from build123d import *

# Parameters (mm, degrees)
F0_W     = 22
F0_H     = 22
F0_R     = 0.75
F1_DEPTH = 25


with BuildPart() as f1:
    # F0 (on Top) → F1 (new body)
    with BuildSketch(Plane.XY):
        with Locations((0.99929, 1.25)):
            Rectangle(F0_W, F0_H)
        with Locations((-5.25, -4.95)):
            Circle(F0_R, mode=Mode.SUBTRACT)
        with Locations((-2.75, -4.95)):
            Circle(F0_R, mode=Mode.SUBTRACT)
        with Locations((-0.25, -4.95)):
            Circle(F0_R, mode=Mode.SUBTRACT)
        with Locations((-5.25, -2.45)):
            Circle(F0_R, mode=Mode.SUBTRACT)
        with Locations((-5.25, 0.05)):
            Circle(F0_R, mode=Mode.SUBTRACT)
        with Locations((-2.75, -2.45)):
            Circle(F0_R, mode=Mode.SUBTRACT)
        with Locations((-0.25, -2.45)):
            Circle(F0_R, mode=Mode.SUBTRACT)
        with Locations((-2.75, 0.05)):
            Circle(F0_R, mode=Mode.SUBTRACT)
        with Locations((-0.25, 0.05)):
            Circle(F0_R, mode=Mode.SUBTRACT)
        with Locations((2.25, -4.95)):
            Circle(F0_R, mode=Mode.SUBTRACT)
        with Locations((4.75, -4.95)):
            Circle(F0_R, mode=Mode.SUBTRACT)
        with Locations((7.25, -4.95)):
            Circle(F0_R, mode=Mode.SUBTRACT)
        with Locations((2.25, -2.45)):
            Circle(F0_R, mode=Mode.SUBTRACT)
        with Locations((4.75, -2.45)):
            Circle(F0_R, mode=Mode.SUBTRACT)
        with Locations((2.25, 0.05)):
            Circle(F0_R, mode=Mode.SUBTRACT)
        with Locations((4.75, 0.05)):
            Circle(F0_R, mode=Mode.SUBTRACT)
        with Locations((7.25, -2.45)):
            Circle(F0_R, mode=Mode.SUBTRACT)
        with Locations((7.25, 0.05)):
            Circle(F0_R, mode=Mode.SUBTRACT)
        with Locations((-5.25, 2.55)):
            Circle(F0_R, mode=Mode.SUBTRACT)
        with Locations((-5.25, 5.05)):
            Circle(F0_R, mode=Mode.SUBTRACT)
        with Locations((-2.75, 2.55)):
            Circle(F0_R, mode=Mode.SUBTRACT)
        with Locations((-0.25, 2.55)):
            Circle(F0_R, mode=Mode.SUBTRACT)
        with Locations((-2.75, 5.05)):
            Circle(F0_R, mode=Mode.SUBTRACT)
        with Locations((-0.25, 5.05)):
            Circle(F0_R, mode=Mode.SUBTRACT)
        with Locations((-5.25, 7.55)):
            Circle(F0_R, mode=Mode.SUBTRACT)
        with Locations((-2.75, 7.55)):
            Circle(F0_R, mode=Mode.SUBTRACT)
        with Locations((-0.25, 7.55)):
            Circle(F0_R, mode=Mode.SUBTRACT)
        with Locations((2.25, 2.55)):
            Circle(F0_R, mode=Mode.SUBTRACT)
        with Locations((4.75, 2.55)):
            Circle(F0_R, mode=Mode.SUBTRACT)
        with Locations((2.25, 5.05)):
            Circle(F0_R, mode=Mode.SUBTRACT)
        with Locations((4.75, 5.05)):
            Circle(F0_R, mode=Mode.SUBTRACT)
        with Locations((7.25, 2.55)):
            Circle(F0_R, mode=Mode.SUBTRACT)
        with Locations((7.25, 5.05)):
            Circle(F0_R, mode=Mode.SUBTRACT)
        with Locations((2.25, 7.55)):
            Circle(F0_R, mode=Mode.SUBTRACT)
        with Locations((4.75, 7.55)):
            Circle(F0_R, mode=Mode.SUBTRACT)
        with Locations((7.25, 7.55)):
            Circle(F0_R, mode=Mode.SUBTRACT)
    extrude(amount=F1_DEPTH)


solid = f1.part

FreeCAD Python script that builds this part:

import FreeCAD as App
import Part
import Sketcher


def add_polygon(sketch, points):
    """Adds a closed chain of lines whose ends are joined by coincident constraints."""
    first, n = sketch.GeometryCount, len(points)
    for a, b in zip(points, points[1:] + points[:1]):
        sketch.addGeometry(Part.LineSegment(App.Vector(*a, 0), App.Vector(*b, 0)), False)
    for i in range(n):
        sketch.addConstraint(Sketcher.Constraint("Coincident", first + i, 2, first + (i + 1) % n, 1))

doc = App.newDocument("Part")
body = doc.addObject("PartDesign::Body", "Body")

sketch1 = doc.addObject("Sketcher::SketchObject", "Sketch")
body.addObject(sketch1)
sketch1.AttachmentSupport = (doc.XY_Plane, [""])
sketch1.MapMode = "FlatFace"
add_polygon(sketch1, [(-10, 12.2), (-10, -9.8), (12, -9.8), (12, 12.2)])
sketch1.addGeometry(Part.Circle(App.Vector(-5.2, -5, 0), App.Vector(0, 0, 1), 0.8), False)
sketch1.addGeometry(Part.Circle(App.Vector(-2.8, -5, 0), App.Vector(0, 0, 1), 0.8), False)
sketch1.addGeometry(Part.Circle(App.Vector(-5.2, -2.5, 0), App.Vector(0, 0, 1), 0.8), False)
sketch1.addGeometry(Part.Circle(App.Vector(-2.8, -2.5, 0), App.Vector(0, 0, 1), 0.8), False)
sketch1.addGeometry(Part.Circle(App.Vector(-0.2, -5, 0), App.Vector(0, 0, 1), 0.8), False)
sketch1.addGeometry(Part.Circle(App.Vector(-0.2, -2.5, 0), App.Vector(0, 0, 1), 0.8), False)
sketch1.addGeometry(Part.Circle(App.Vector(-5.2, 0.1, 0), App.Vector(0, 0, 1), 0.8), False)
sketch1.addGeometry(Part.Circle(App.Vector(-2.8, 0.1, 0), App.Vector(0, 0, 1), 0.8), False)
sketch1.addGeometry(Part.Circle(App.Vector(-0.2, 0.1, 0), App.Vector(0, 0, 1), 0.8), False)
sketch1.addGeometry(Part.Circle(App.Vector(2.2, -5, 0), App.Vector(0, 0, 1), 0.8), False)
sketch1.addGeometry(Part.Circle(App.Vector(2.2, -2.5, 0), App.Vector(0, 0, 1), 0.8), False)
sketch1.addGeometry(Part.Circle(App.Vector(4.8, -5, 0), App.Vector(0, 0, 1), 0.8), False)
sketch1.addGeometry(Part.Circle(App.Vector(7.2, -5, 0), App.Vector(0, 0, 1), 0.8), False)
sketch1.addGeometry(Part.Circle(App.Vector(4.8, -2.5, 0), App.Vector(0, 0, 1), 0.8), False)
sketch1.addGeometry(Part.Circle(App.Vector(7.2, -2.5, 0), App.Vector(0, 0, 1), 0.8), False)
sketch1.addGeometry(Part.Circle(App.Vector(2.2, 0.1, 0), App.Vector(0, 0, 1), 0.8), False)
sketch1.addGeometry(Part.Circle(App.Vector(4.8, 0.1, 0), App.Vector(0, 0, 1), 0.8), False)
sketch1.addGeometry(Part.Circle(App.Vector(7.2, 0.1, 0), App.Vector(0, 0, 1), 0.8), False)
sketch1.addGeometry(Part.Circle(App.Vector(-5.2, 2.5, 0), App.Vector(0, 0, 1), 0.8), False)
sketch1.addGeometry(Part.Circle(App.Vector(-2.8, 2.5, 0), App.Vector(0, 0, 1), 0.8), False)
sketch1.addGeometry(Part.Circle(App.Vector(-0.2, 2.5, 0), App.Vector(0, 0, 1), 0.8), False)
sketch1.addGeometry(Part.Circle(App.Vector(-5.2, 5, 0), App.Vector(0, 0, 1), 0.8), False)
sketch1.addGeometry(Part.Circle(App.Vector(-2.8, 5, 0), App.Vector(0, 0, 1), 0.8), False)
sketch1.addGeometry(Part.Circle(App.Vector(-5.2, 7.5, 0), App.Vector(0, 0, 1), 0.8), False)
sketch1.addGeometry(Part.Circle(App.Vector(-2.8, 7.5, 0), App.Vector(0, 0, 1), 0.8), False)
sketch1.addGeometry(Part.Circle(App.Vector(-0.2, 5, 0), App.Vector(0, 0, 1), 0.8), False)
sketch1.addGeometry(Part.Circle(App.Vector(-0.2, 7.5, 0), App.Vector(0, 0, 1), 0.8), False)
sketch1.addGeometry(Part.Circle(App.Vector(2.2, 2.5, 0), App.Vector(0, 0, 1), 0.8), False)
sketch1.addGeometry(Part.Circle(App.Vector(4.8, 2.5, 0), App.Vector(0, 0, 1), 0.8), False)
sketch1.addGeometry(Part.Circle(App.Vector(7.2, 2.5, 0), App.Vector(0, 0, 1), 0.8), False)
sketch1.addGeometry(Part.Circle(App.Vector(2.2, 5, 0), App.Vector(0, 0, 1), 0.8), False)
sketch1.addGeometry(Part.Circle(App.Vector(2.2, 7.5, 0), App.Vector(0, 0, 1), 0.8), False)
sketch1.addGeometry(Part.Circle(App.Vector(4.8, 5, 0), App.Vector(0, 0, 1), 0.8), False)
sketch1.addGeometry(Part.Circle(App.Vector(7.2, 5, 0), App.Vector(0, 0, 1), 0.8), False)
sketch1.addGeometry(Part.Circle(App.Vector(4.8, 7.5, 0), App.Vector(0, 0, 1), 0.8), False)
sketch1.addGeometry(Part.Circle(App.Vector(7.2, 7.5, 0), App.Vector(0, 0, 1), 0.8), False)
sketch1.addConstraint(Sketcher.Constraint("Vertical", 0))
sketch1.addConstraint(Sketcher.Constraint("Horizontal", 1))
sketch1.addConstraint(Sketcher.Constraint("Vertical", 2))
sketch1.addConstraint(Sketcher.Constraint("Horizontal", 3))
sketch1.addConstraint(Sketcher.Constraint("Equal", 4, 5))
sketch1.addConstraint(Sketcher.Constraint("Equal", 5, 6))
sketch1.addConstraint(Sketcher.Constraint("Equal", 6, 7))
sketch1.addConstraint(Sketcher.Constraint("Equal", 7, 8))
sketch1.addConstraint(Sketcher.Constraint("Equal", 8, 9))
sketch1.addConstraint(Sketcher.Constraint("Equal", 9, 10))
sketch1.addConstraint(Sketcher.Constraint("Equal", 10, 11))
sketch1.addConstraint(Sketcher.Constraint("Equal", 11, 12))
sketch1.addConstraint(Sketcher.Constraint("Equal", 12, 13))
sketch1.addConstraint(Sketcher.Constraint("Equal", 13, 14))
sketch1.addConstraint(Sketcher.Constraint("Equal", 14, 15))
sketch1.addConstraint(Sketcher.Constraint("Equal", 15, 16))
sketch1.addConstraint(Sketcher.Constraint("Equal", 16, 17))
sketch1.addConstraint(Sketcher.Constraint("Equal", 17, 18))
sketch1.addConstraint(Sketcher.Constraint("Equal", 18, 19))
sketch1.addConstraint(Sketcher.Constraint("Equal", 19, 20))
sketch1.addConstraint(Sketcher.Constraint("Equal", 20, 21))
sketch1.addConstraint(Sketcher.Constraint("Equal", 21, 22))
sketch1.addConstraint(Sketcher.Constraint("Equal", 22, 23))
sketch1.addConstraint(Sketcher.Constraint("Equal", 23, 24))
sketch1.addConstraint(Sketcher.Constraint("Equal", 24, 25))
sketch1.addConstraint(Sketcher.Constraint("Equal", 25, 26))
sketch1.addConstraint(Sketcher.Constraint("Equal", 26, 27))
sketch1.addConstraint(Sketcher.Constraint("Equal", 27, 28))
sketch1.addConstraint(Sketcher.Constraint("Equal", 28, 29))
sketch1.addConstraint(Sketcher.Constraint("Equal", 29, 30))
sketch1.addConstraint(Sketcher.Constraint("Equal", 30, 31))
sketch1.addConstraint(Sketcher.Constraint("Equal", 31, 32))
sketch1.addConstraint(Sketcher.Constraint("Equal", 32, 33))
sketch1.addConstraint(Sketcher.Constraint("Equal", 33, 34))
sketch1.addConstraint(Sketcher.Constraint("Equal", 34, 35))
sketch1.addConstraint(Sketcher.Constraint("Equal", 35, 36))
sketch1.addConstraint(Sketcher.Constraint("Equal", 36, 37))
sketch1.addConstraint(Sketcher.Constraint("Equal", 37, 38))
sketch1.addConstraint(Sketcher.Constraint("Equal", 38, 39))
sketch1.addConstraint(Sketcher.Constraint("Horizontal", 4, 3, 5, 3))
sketch1.addConstraint(Sketcher.Constraint("Horizontal", 6, 3, 7, 3))
sketch1.addConstraint(Sketcher.Constraint("Horizontal", 5, 3, 8, 3))
sketch1.addConstraint(Sketcher.Constraint("Horizontal", 7, 3, 9, 3))
sketch1.addConstraint(Sketcher.Constraint("Horizontal", 10, 3, 11, 3))
sketch1.addConstraint(Sketcher.Constraint("Horizontal", 11, 3, 12, 3))
sketch1.addConstraint(Sketcher.Constraint("Horizontal", 8, 3, 13, 3))
sketch1.addConstraint(Sketcher.Constraint("Horizontal", 9, 3, 14, 3))
sketch1.addConstraint(Sketcher.Constraint("Horizontal", 13, 3, 15, 3))
sketch1.addConstraint(Sketcher.Constraint("Horizontal", 15, 3, 16, 3))
sketch1.addConstraint(Sketcher.Constraint("Horizontal", 14, 3, 17, 3))
sketch1.addConstraint(Sketcher.Constraint("Horizontal", 17, 3, 18, 3))
sketch1.addConstraint(Sketcher.Constraint("Horizontal", 12, 3, 19, 3))
sketch1.addConstraint(Sketcher.Constraint("Horizontal", 19, 3, 20, 3))
sketch1.addConstraint(Sketcher.Constraint("Horizontal", 20, 3, 21, 3))
sketch1.addConstraint(Sketcher.Constraint("Horizontal", 22, 3, 23, 3))
sketch1.addConstraint(Sketcher.Constraint("Horizontal", 23, 3, 24, 3))
sketch1.addConstraint(Sketcher.Constraint("Horizontal", 25, 3, 26, 3))
sketch1.addConstraint(Sketcher.Constraint("Horizontal", 27, 3, 28, 3))
sketch1.addConstraint(Sketcher.Constraint("Horizontal", 26, 3, 29, 3))
sketch1.addConstraint(Sketcher.Constraint("Horizontal", 28, 3, 30, 3))
sketch1.addConstraint(Sketcher.Constraint("Horizontal", 24, 3, 31, 3))
sketch1.addConstraint(Sketcher.Constraint("Horizontal", 31, 3, 32, 3))
sketch1.addConstraint(Sketcher.Constraint("Horizontal", 32, 3, 33, 3))
sketch1.addConstraint(Sketcher.Constraint("Horizontal", 29, 3, 34, 3))
sketch1.addConstraint(Sketcher.Constraint("Horizontal", 30, 3, 35, 3))
sketch1.addConstraint(Sketcher.Constraint("Horizontal", 34, 3, 36, 3))
sketch1.addConstraint(Sketcher.Constraint("Horizontal", 36, 3, 37, 3))
sketch1.addConstraint(Sketcher.Constraint("Horizontal", 35, 3, 38, 3))
sketch1.addConstraint(Sketcher.Constraint("Horizontal", 38, 3, 39, 3))
sketch1.addConstraint(Sketcher.Constraint("Vertical", 4, 3, 6, 3))
sketch1.addConstraint(Sketcher.Constraint("Vertical", 5, 3, 7, 3))
sketch1.addConstraint(Sketcher.Constraint("Vertical", 8, 3, 9, 3))
sketch1.addConstraint(Sketcher.Constraint("Vertical", 6, 3, 10, 3))
sketch1.addConstraint(Sketcher.Constraint("Vertical", 7, 3, 11, 3))
sketch1.addConstraint(Sketcher.Constraint("Vertical", 9, 3, 12, 3))
sketch1.addConstraint(Sketcher.Constraint("Vertical", 13, 3, 14, 3))
sketch1.addConstraint(Sketcher.Constraint("Vertical", 15, 3, 17, 3))
sketch1.addConstraint(Sketcher.Constraint("Vertical", 16, 3, 18, 3))
sketch1.addConstraint(Sketcher.Constraint("Vertical", 14, 3, 19, 3))
sketch1.addConstraint(Sketcher.Constraint("Vertical", 17, 3, 20, 3))
sketch1.addConstraint(Sketcher.Constraint("Vertical", 18, 3, 21, 3))
sketch1.addConstraint(Sketcher.Constraint("Vertical", 10, 3, 22, 3))
sketch1.addConstraint(Sketcher.Constraint("Vertical", 11, 3, 23, 3))
sketch1.addConstraint(Sketcher.Constraint("Vertical", 12, 3, 24, 3))
sketch1.addConstraint(Sketcher.Constraint("Vertical", 22, 3, 25, 3))
sketch1.addConstraint(Sketcher.Constraint("Vertical", 23, 3, 26, 3))
sketch1.addConstraint(Sketcher.Constraint("Vertical", 25, 3, 27, 3))
sketch1.addConstraint(Sketcher.Constraint("Vertical", 26, 3, 28, 3))
sketch1.addConstraint(Sketcher.Constraint("Vertical", 24, 3, 29, 3))
sketch1.addConstraint(Sketcher.Constraint("Vertical", 29, 3, 30, 3))
sketch1.addConstraint(Sketcher.Constraint("Vertical", 19, 3, 31, 3))
sketch1.addConstraint(Sketcher.Constraint("Vertical", 20, 3, 32, 3))
sketch1.addConstraint(Sketcher.Constraint("Vertical", 21, 3, 33, 3))
sketch1.addConstraint(Sketcher.Constraint("Vertical", 31, 3, 34, 3))
sketch1.addConstraint(Sketcher.Constraint("Vertical", 34, 3, 35, 3))
sketch1.addConstraint(Sketcher.Constraint("Vertical", 32, 3, 36, 3))
sketch1.addConstraint(Sketcher.Constraint("Vertical", 33, 3, 37, 3))
sketch1.addConstraint(Sketcher.Constraint("Vertical", 36, 3, 38, 3))
sketch1.addConstraint(Sketcher.Constraint("Vertical", 37, 3, 39, 3))
sketch1.addConstraint(Sketcher.Constraint("Equal", 3, 0))
sketch1.addConstraint(Sketcher.Constraint("Diameter", 4, 1.5))
sketch1.addConstraint(Sketcher.Constraint("DistanceX", 1, 1, 1, 2, 22.0))
sketch1.addConstraint(Sketcher.Constraint("DistanceX", 4, 3, 8, 3, 5.0))
sketch1.addConstraint(Sketcher.Constraint("DistanceY", 4, 3, 10, 3, 5.0))
sketch1.addConstraint(Sketcher.Constraint("DistanceX", 5, 3, 13, 3, 5.0))
sketch1.addConstraint(Sketcher.Constraint("DistanceX", 8, 3, 15, 3, 5.0))
sketch1.addConstraint(Sketcher.Constraint("DistanceX", 13, 3, 16, 3, 5.0))
sketch1.addConstraint(Sketcher.Constraint("DistanceY", 6, 3, 22, 3, 5.0))
sketch1.addConstraint(Sketcher.Constraint("DistanceY", 10, 3, 25, 3, 5.0))
sketch1.addConstraint(Sketcher.Constraint("DistanceY", 22, 3, 27, 3, 5.0))
sketch1.addConstraint(Sketcher.Constraint("DistanceX", 4, 3, 5, 3, 2.5))
sketch1.addConstraint(Sketcher.Constraint("DistanceY", 4, 3, 6, 3, 2.5))
sketch1.addConstraint(Sketcher.Constraint("DistanceY", 0, 2, 4, 3, 4.8))
sketch1.addConstraint(Sketcher.Constraint("DistanceX", 4, 3, -1, 1, 5.25))
sketch1.addConstraint(Sketcher.Constraint("DistanceY", 4, 3, -1, 1, 4.95))
sketch1.addConstraint(Sketcher.Constraint("DistanceX", 0, 2, -1, 1, 10.00071))
pad1 = doc.addObject("PartDesign::Pad", "Pad")
body.addObject(pad1)
pad1.Profile = sketch1
pad1.Length = 25

doc.recompute()
